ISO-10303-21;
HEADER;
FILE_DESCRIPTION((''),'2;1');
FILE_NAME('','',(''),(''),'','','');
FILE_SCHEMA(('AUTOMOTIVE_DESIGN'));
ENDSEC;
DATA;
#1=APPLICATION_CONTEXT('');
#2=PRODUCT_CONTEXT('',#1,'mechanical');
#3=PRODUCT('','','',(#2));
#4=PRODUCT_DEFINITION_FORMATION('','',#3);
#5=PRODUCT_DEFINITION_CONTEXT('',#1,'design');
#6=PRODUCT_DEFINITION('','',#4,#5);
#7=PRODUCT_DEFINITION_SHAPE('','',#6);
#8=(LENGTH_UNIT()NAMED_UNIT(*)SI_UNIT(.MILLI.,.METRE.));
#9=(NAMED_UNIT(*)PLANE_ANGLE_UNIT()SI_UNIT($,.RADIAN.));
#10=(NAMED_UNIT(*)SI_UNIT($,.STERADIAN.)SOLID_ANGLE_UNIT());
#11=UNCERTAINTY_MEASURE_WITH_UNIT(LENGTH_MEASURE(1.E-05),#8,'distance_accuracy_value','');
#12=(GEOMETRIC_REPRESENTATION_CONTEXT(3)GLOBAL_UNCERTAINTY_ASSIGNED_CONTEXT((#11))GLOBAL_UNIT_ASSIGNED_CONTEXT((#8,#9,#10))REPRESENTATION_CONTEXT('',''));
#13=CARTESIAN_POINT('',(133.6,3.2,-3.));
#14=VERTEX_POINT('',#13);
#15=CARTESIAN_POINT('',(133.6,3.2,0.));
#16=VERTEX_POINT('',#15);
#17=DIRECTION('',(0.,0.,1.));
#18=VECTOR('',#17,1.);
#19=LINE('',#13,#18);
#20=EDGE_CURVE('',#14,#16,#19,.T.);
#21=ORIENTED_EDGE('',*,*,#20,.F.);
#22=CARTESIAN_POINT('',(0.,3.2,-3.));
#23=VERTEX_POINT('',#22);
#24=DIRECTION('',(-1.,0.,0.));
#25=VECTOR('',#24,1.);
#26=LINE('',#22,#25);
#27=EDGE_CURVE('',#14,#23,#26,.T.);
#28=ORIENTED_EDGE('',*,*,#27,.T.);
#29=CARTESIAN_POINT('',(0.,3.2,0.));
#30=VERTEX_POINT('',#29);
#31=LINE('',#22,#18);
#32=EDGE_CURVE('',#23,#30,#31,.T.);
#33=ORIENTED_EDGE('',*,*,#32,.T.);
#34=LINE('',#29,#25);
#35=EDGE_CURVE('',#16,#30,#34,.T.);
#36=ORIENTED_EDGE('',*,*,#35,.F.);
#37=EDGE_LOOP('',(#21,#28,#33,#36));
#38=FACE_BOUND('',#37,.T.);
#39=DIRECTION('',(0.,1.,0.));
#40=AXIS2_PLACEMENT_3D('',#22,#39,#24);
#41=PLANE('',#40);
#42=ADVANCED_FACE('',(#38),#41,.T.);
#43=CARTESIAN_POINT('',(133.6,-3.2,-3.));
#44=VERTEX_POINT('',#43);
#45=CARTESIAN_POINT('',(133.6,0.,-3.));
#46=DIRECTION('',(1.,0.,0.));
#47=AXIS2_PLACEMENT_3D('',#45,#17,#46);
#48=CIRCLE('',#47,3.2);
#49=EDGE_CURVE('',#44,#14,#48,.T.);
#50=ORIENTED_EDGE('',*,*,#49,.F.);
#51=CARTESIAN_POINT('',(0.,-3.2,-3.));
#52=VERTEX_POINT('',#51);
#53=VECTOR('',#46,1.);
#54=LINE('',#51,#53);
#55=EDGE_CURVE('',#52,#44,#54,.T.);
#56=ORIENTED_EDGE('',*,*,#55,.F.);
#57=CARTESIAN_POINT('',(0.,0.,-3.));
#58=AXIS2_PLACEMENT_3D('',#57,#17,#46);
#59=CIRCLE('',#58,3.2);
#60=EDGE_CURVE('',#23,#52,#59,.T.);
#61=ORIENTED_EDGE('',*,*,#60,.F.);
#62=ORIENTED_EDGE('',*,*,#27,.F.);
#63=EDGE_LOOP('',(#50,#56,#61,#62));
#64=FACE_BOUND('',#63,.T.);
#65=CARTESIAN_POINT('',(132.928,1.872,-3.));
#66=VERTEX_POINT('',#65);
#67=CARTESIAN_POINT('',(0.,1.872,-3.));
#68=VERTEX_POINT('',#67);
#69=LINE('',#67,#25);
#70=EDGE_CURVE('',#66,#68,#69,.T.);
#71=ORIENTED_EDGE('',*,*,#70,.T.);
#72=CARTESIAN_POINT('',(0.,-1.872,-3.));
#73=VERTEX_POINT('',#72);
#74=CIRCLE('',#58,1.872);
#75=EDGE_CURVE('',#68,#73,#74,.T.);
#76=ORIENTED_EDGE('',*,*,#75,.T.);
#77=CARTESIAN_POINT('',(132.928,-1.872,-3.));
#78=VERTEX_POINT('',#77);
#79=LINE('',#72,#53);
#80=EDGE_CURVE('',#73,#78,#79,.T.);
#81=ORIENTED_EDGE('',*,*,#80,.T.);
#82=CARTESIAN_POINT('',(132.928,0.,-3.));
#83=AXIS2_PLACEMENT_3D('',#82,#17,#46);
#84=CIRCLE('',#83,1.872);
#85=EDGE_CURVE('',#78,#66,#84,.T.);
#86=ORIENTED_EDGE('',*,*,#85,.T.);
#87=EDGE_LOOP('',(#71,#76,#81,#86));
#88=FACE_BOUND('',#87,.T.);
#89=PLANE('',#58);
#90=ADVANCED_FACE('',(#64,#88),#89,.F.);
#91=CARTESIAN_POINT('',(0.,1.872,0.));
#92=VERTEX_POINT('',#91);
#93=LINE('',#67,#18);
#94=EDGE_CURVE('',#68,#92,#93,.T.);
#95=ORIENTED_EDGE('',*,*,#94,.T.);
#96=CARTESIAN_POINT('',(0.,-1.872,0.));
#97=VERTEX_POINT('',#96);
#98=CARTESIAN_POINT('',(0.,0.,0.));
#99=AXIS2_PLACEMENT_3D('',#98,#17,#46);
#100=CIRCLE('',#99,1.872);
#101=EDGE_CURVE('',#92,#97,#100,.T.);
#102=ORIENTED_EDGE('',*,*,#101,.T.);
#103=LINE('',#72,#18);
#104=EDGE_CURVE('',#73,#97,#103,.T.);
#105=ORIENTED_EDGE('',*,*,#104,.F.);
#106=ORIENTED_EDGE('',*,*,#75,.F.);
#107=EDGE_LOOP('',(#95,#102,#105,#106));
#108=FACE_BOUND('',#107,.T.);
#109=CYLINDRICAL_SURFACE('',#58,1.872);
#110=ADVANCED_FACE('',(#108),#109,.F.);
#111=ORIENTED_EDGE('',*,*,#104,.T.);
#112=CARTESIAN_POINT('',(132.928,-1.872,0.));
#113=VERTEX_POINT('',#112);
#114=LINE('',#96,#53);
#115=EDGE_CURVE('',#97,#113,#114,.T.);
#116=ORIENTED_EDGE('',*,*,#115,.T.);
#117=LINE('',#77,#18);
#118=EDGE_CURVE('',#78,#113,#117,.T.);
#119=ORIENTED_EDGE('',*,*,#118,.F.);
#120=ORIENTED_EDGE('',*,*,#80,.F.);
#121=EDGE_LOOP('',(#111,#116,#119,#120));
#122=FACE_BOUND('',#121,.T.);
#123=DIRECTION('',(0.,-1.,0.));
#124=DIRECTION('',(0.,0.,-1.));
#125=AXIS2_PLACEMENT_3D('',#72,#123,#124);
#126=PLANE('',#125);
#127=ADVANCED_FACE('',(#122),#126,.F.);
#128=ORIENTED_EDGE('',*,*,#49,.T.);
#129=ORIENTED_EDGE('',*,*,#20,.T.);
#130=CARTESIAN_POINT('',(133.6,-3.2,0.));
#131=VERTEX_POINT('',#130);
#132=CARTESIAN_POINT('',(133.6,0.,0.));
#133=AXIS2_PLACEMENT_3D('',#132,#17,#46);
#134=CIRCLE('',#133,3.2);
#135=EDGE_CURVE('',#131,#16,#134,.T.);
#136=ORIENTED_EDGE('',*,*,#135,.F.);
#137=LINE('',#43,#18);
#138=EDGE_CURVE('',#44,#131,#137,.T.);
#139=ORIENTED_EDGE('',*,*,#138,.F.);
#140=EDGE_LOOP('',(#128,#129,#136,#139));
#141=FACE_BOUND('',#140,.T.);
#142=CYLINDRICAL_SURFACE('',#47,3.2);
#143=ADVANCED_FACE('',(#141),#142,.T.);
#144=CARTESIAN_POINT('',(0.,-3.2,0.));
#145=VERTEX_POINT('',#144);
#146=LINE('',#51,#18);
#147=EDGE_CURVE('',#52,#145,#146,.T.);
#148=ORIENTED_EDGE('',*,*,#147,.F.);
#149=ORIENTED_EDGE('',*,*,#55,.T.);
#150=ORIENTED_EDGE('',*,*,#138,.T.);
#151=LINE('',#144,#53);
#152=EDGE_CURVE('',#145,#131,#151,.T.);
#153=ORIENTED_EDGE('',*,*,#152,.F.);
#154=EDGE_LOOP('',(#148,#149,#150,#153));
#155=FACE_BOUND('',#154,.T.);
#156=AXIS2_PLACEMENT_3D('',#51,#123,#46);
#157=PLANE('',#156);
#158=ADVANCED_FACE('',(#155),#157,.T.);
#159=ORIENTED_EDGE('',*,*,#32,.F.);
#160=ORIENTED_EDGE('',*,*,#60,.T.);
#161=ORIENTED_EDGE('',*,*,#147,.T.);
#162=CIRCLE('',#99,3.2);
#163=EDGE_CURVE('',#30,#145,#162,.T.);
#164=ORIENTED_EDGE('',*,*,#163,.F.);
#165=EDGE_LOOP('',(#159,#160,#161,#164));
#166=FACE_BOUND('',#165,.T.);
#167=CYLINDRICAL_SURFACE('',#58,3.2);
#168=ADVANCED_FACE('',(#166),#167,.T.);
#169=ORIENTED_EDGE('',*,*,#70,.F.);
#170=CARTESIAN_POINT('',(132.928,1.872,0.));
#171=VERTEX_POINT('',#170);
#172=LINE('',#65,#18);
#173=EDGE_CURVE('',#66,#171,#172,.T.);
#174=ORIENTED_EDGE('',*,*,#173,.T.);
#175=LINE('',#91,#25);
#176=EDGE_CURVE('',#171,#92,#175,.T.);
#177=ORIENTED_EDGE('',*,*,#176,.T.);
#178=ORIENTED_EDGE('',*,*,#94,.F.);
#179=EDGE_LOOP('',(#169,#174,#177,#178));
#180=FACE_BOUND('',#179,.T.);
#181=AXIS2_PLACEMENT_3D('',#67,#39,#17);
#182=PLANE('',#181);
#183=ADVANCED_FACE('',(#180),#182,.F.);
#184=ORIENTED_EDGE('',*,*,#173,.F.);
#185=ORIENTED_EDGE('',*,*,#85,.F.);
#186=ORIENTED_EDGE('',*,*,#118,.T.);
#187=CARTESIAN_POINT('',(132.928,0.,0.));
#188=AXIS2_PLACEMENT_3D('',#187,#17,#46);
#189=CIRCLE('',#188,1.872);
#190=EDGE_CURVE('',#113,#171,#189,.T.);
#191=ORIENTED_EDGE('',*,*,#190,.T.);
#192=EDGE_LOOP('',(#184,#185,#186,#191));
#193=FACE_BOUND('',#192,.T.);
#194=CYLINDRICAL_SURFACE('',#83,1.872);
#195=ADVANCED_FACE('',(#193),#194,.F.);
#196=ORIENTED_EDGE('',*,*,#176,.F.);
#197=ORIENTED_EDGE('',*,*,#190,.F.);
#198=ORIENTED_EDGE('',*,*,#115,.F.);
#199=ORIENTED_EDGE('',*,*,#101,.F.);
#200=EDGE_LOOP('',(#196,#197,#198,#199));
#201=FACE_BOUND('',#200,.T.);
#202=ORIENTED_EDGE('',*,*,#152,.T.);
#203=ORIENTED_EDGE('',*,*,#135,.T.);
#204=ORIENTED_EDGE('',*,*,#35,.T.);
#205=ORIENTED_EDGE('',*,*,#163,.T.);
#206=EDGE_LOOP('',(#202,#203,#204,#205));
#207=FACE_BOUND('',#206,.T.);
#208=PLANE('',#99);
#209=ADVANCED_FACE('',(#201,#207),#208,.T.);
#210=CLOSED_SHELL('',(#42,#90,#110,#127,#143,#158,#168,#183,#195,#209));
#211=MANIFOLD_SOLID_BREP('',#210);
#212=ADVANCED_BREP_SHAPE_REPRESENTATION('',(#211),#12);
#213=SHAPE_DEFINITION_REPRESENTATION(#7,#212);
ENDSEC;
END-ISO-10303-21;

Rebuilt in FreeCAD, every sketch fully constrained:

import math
import FreeCAD as App
import Part
import Sketcher

doc = App.newDocument("Part")
body = doc.addObject("PartDesign::Body", "Body")

# Sketch on XY plane
sketch1 = body.newObject("Sketcher::SketchObject", "Sketch")
sketch1.AttachmentSupport = (doc.getObject("XY_Plane"), [""])
sketch1.MapMode = "FlatFace"
sketch1.addGeometry([
    Part.LineSegment(App.Vector(133.6, 3.2, 0), App.Vector(0, 3.2, 0)),  # 0
    Part.ArcOfCircle(Part.Circle(App.Vector(0, 0, 0), App.Vector(0, 0, 1), 3.2), math.radians(90), math.radians(270)),  # 1
    Part.LineSegment(App.Vector(0, -3.2, 0), App.Vector(133.6, -3.2, 0)),  # 2
    Part.ArcOfCircle(Part.Circle(App.Vector(133.6, 0, 0), App.Vector(0, 0, 1), 3.2), math.radians(-90), math.radians(90)),  # 3
    Part.LineSegment(App.Vector(0, 1.872, 0), App.Vector(132.928, 1.872, 0)),  # 4
    Part.ArcOfCircle(Part.Circle(App.Vector(132.928, 0, 0), App.Vector(0, 0, 1), 1.872), math.radians(-90), math.radians(90)),  # 5
    Part.LineSegment(App.Vector(132.928, -1.872, 0), App.Vector(0, -1.872, 0)),  # 6
    Part.ArcOfCircle(Part.Circle(App.Vector(0, 0, 0), App.Vector(0, 0, 1), 1.872), math.radians(90), math.radians(270)),  # 7
], False)
sketch1.addConstraint([
    Sketcher.Constraint("Tangent", 0, 2, 1, 1),
    Sketcher.Constraint("Tangent", 1, 2, 2, 1),
    Sketcher.Constraint("Tangent", 2, 2, 3, 1),
    Sketcher.Constraint("Tangent", 3, 2, 0, 1),
    Sketcher.Constraint("Tangent", 4, 2, 5, 2),
    Sketcher.Constraint("Tangent", 5, 1, 6, 1),
    Sketcher.Constraint("Tangent", 6, 2, 7, 2),
    Sketcher.Constraint("Tangent", 7, 1, 4, 1),
    Sketcher.Constraint("Horizontal", 0),
    Sketcher.Constraint("Horizontal", 2),
    Sketcher.Constraint("Horizontal", 4),
    Sketcher.Constraint("Horizontal", 6),
    Sketcher.Constraint("Coincident", 1, 3, -1, 1),
    Sketcher.Constraint("Coincident", 7, 3, -1, 1),
    Sketcher.Constraint("Radius", 1, 3.2),
    Sketcher.Constraint("DistanceX", 0, 2, 0, 1, 133.6),
    Sketcher.Constraint("Radius", 5, 1.872),
    Sketcher.Constraint("DistanceX", 4, 1, 4, 2, 132.928),
])
pad1 = body.newObject("PartDesign::Pad", "Pad")
pad1.Profile = sketch1
pad1.Length = 3
pad1.Reversed = True

doc.recompute()
